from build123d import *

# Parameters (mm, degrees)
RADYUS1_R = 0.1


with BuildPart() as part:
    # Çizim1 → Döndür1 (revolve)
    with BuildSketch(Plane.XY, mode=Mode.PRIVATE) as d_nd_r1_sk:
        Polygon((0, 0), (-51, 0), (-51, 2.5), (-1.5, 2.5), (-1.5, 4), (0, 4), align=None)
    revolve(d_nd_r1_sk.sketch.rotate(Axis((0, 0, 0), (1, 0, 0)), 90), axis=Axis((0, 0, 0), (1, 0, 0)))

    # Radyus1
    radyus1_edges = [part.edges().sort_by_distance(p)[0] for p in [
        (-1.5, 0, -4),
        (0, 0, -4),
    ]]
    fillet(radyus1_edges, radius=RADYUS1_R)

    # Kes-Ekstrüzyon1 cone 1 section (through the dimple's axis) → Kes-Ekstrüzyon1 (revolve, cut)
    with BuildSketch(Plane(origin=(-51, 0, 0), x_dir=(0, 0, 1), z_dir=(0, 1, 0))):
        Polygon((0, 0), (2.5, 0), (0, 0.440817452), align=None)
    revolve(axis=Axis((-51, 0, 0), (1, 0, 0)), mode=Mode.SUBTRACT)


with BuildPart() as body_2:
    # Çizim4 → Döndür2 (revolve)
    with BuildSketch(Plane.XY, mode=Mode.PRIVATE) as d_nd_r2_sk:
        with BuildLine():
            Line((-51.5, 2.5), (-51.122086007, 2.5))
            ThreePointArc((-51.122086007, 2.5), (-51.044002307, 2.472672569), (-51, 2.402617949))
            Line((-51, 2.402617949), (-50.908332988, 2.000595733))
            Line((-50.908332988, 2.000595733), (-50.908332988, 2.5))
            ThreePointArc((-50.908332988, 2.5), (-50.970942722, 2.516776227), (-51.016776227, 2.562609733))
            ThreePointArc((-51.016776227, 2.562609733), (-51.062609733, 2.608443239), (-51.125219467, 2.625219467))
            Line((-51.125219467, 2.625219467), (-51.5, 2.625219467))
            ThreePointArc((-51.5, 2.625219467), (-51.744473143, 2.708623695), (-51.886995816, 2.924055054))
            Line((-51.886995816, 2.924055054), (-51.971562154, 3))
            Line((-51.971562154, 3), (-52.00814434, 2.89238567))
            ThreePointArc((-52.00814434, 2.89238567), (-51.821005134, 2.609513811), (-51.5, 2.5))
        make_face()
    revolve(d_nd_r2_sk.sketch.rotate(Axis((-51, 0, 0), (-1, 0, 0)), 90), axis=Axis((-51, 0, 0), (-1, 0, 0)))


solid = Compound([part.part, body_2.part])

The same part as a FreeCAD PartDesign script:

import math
import FreeCAD as App
import Part
import Sketcher
Q = App.Units.Quantity


def edges_at(feature, points):
    """Names of the edges that pass closest to the given points."""
    edges = feature.Shape.Edges
    near = lambda p: min(range(len(edges)), key=lambda i: edges[i].distToShape(Part.Vertex(*p))[0])
    return sorted({f"Edge{near(p) + 1}" for p in points})


def add_polygon(sketch, points):
    """Adds a closed chain of lines whose ends are joined by coincident constraints."""
    first, n = sketch.GeometryCount, len(points)
    for a, b in zip(points, points[1:] + points[:1]):
        sketch.addGeometry(Part.LineSegment(App.Vector(*a, 0), App.Vector(*b, 0)), False)
    for i in range(n):
        sketch.addConstraint(Sketcher.Constraint("Coincident", first + i, 2, first + (i + 1) % n, 1))

doc = App.newDocument("Part")
params = doc.addObject("Spreadsheet::Sheet", "Params")
for row, (alias, value) in enumerate([
    ("sketch1_width", "51 mm"),
    ("sketch1_height", "4 mm"),
    ("sketch1_width2", "1.5 mm"),
    ("revolution_angle", "360 deg"),
    ("fillet_radius", "0.1 mm"),
    ("sketch2_height", "2.5 mm"),
    ("groove_angle", "360 deg"),
    ("sketch3_radius", "0.4 mm"),
    ("revolution2_angle", "360 deg"),
], start=1):
    params.set(f"A{row}", alias)
    params.set(f"B{row}", "=" + value)
    params.setAlias(f"B{row}", alias)

body = doc.addObject("PartDesign::Body", "Body")

sketch1 = body.newObject("Sketcher::SketchObject", "Sketch")
sketch1.AttachmentSupport = (doc.getObject("XY_Plane"), [""])
sketch1.MapMode = "FlatFace"
add_polygon(sketch1, [(-51, 0), (0, 0), (0, 4), (-1.5, 4), (-1.5, 2.5), (-51, 2.5)])
sketch1.addConstraint([
    Sketcher.Constraint("Horizontal", 0),
    Sketcher.Constraint("Vertical", 1),
    Sketcher.Constraint("Horizontal", 2),
    Sketcher.Constraint("Vertical", 3),
    Sketcher.Constraint("Horizontal", 4),
    Sketcher.Constraint("Vertical", 5),
    Sketcher.Constraint("Coincident", 0, 2, -1, 1),
    Sketcher.Constraint("Equal", 2, 3),
    Sketcher.Constraint("DistanceX", 0, 1, 0, 2, Q("51 mm")),
    Sketcher.Constraint("DistanceY", 1, 1, 1, 2, Q("4 mm")),
    Sketcher.Constraint("DistanceX", 2, 2, 2, 1, Q("1.5 mm")),
])
sketch1.setExpression("Constraints[14]", "Params.sketch1_width")
sketch1.setExpression("Constraints[15]", "Params.sketch1_height")
sketch1.setExpression("Constraints[16]", "Params.sketch1_width2")
revolution = body.newObject("PartDesign::Revolution", "Revolution")
revolution.Profile = sketch1
revolution.ReferenceAxis = (sketch1, ["H_Axis"])
revolution.setExpression("Angle", "Params.revolution_angle")
doc.recompute()

fillet = body.newObject("PartDesign::Fillet", "Fillet")
fillet.Base = (revolution, edges_at(revolution, [(-1.5, 0, -4), (0, 0, -4)]))
fillet.setExpression("Radius", "Params.fillet_radius")

sketch2 = body.newObject("Sketcher::SketchObject", "Sketch001")
sketch2.AttachmentSupport = (doc.getObject("XZ_Plane"), [""])
sketch2.MapMode = "FlatFace"
add_polygon(sketch2, [(-51, 0), (-51, 2.5), (-50.56, 0)])
sketch2.addConstraint([
    Sketcher.Constraint("Vertical", 0),
    Sketcher.Constraint("Horizontal", 2),
    Sketcher.Constraint("PointOnObject", 1, 2, -1),
    Sketcher.Constraint("Angle", 1, Q("-80 deg")),
    Sketcher.Constraint("DistanceY", 0, 1, 0, 2, Q("2.5 mm")),
    Sketcher.Constraint("DistanceX", 0, 2, -1, 1, Q("51 mm")),
])
sketch2.setExpression("Constraints[7]", "Params.sketch2_height")
groove = body.newObject("PartDesign::Groove", "Groove")
groove.Profile = sketch2
groove.ReferenceAxis = (sketch2, ["H_Axis"])
groove.setExpression("Angle", "Params.groove_angle")
body2 = doc.addObject("PartDesign::Body", "Body001")

sketch3 = body2.newObject("Sketcher::SketchObject", "Sketch002")
sketch3.AttachmentSupport = (doc.getObject("XY_Plane001"), [""])
sketch3.MapMode = "FlatFace"
sketch3.addGeometry([
    Part.LineSegment(App.Vector(-51.5, 2.5, 0), App.Vector(-51.12, 2.5, 0)),
    Part.ArcOfCircle(Part.Circle(App.Vector(-51.12, 2.37, 0), App.Vector(0, 0, 1), 0.13), math.radians(13), math.radians(90)),
    Part.LineSegment(App.Vector(-51, 2.4, 0), App.Vector(-50.91, 2, 0)),
    Part.LineSegment(App.Vector(-50.91, 2, 0), App.Vector(-50.91, 2.5, 0)),
    Part.ArcOfCircle(Part.Circle(App.Vector(-50.91, 2.63, 0), App.Vector(0, 0, 1), 0.13), math.radians(-150), math.radians(-90)),
    Part.ArcOfCircle(Part.Circle(App.Vector(-51.13, 2.5, 0), App.Vector(0, 0, 1), 0.13), math.radians(30), math.radians(90)),
    Part.LineSegment(App.Vector(-51.13, 2.63, 0), App.Vector(-51.5, 2.63, 0)),
    Part.ArcOfCircle(Part.Circle(App.Vector(-51.5, 3.03, 0), App.Vector(0, 0, 1), 0.4), math.radians(-165), math.radians(-90)),
    Part.LineSegment(App.Vector(-51.89, 2.92, 0), App.Vector(-51.97, 3, 0)),
    Part.LineSegment(App.Vector(-51.97, 3, 0), App.Vector(-52.01, 2.89, 0)),
    Part.ArcOfCircle(Part.Circle(App.Vector(-51.5, 3.03, 0), App.Vector(0, 0, 1), 0.53), math.radians(-165), math.radians(-90)),
], False)
sketch3.addConstraint([
    Sketcher.Constraint("Tangent", 0, 2, 1, 2),
    Sketcher.Constraint("Tangent", 1, 1, 2, 1),
    Sketcher.Constraint("Coincident", 2, 2, 3, 1),
    Sketcher.Constraint("Coincident", 3, 2, 4, 2),
    Sketcher.Constraint("Tangent", 4, 1, 5, 1),
    Sketcher.Constraint("Tangent", 5, 2, 6, 1),
    Sketcher.Constraint("Tangent", 6, 2, 7, 2),
    Sketcher.Constraint("Coincident", 7, 1, 8, 1),
    Sketcher.Constraint("Coincident", 8, 2, 9, 1),
    Sketcher.Constraint("Coincident", 9, 2, 10, 1),
    Sketcher.Constraint("Tangent", 10, 2, 0, 1),
    Sketcher.Constraint("Horizontal", 0),
    Sketcher.Constraint("Vertical", 3),
    Sketcher.Constraint("Horizontal", 6),
    Sketcher.Constraint("Coincident", 10, 3, 7, 3),
    Sketcher.Constraint("Equal", 1, 4),
    Sketcher.Constraint("Equal", 4, 5),
    Sketcher.Constraint("Horizontal", 5, 3, 0, 2),
    Sketcher.Constraint("Horizontal", 0, 2, 3, 2),
    Sketcher.Constraint("Vertical", 4, 3, 2, 2),
    Sketcher.Constraint("Equal", 8, 9),
    Sketcher.Constraint("Radius", 7, Q("0.4 mm")),
    Sketcher.Constraint("DistanceX", 1, 1, -1, 1, Q("51 mm")),
    Sketcher.Constraint("DistanceY", -1, 1, 8, 2, Q("3 mm")),
    Sketcher.Constraint("DistanceY", -1, 1, 5, 3, Q("2.5 mm")),
    Sketcher.Constraint("DistanceX", 7, 3, -1, 1, Q("51.5 mm")),
    Sketcher.Constraint("Radius", 1, Q("0.125219 mm")),
    Sketcher.Constraint("DistanceX", 6, 2, 6, 1, Q("0.374781 mm")),
    Sketcher.Constraint("DistanceY", 1, 1, 4, 3, Q("0.222602 mm")),
    Sketcher.Constraint("DistanceX", 9, 2, 7, 1, Q("0.121149 mm")),
    Sketcher.Constraint("Distance", 8, Q("0.113662 mm")),
])
sketch3.setExpression("Constraints[21]", "Params.sketch3_radius")
revolution2 = body2.newObject("PartDesign::Revolution", "Revolution001")
revolution2.Profile = sketch3
revolution2.ReferenceAxis = (sketch3, ["H_Axis"])
revolution2.setExpression("Angle", "Params.revolution2_angle")

doc.recompute()
